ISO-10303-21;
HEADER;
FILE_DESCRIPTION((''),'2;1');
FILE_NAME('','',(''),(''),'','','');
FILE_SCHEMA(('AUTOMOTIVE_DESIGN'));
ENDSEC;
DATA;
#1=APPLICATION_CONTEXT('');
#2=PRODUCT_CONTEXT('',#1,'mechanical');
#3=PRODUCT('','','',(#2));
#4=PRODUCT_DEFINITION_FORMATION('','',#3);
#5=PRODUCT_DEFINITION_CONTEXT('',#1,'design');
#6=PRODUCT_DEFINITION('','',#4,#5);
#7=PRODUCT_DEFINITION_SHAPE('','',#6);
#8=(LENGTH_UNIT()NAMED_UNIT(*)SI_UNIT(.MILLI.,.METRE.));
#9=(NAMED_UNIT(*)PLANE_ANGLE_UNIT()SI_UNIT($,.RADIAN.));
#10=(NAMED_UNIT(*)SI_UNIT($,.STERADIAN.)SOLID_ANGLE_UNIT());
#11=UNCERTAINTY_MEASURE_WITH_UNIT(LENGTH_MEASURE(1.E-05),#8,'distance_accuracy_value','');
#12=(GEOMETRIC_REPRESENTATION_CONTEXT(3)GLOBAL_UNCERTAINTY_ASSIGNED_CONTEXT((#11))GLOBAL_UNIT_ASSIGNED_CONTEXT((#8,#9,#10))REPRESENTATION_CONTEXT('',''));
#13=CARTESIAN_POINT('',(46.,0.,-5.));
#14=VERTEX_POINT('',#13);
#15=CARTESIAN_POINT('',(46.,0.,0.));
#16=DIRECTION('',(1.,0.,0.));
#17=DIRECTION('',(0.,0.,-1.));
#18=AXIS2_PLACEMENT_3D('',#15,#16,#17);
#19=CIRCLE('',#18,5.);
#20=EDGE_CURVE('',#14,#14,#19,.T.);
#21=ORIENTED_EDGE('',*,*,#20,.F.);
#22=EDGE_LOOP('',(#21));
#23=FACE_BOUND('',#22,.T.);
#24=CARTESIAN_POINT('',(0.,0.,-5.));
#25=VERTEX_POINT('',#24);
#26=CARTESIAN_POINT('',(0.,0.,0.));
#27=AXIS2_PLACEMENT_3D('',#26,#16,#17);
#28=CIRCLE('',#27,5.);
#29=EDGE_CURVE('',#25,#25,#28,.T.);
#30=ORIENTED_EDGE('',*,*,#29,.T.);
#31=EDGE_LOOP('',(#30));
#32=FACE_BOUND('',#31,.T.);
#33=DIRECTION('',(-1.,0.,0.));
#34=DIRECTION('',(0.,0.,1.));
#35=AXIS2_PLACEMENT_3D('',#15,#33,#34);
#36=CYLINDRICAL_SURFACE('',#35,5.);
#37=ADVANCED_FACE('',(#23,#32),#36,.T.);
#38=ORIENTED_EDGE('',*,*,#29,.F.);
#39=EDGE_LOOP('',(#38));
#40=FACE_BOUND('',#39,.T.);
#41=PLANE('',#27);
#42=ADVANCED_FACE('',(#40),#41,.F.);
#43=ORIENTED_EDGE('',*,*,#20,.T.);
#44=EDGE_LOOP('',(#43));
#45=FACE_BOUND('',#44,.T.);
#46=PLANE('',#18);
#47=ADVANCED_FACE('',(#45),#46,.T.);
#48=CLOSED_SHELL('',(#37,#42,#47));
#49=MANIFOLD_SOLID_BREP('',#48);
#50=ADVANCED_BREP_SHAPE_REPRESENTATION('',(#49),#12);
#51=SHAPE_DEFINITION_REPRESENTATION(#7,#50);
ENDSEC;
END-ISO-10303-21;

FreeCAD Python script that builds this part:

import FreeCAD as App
import Part
import Sketcher
from FreeCAD import Vector

doc = App.newDocument("Part")
body = doc.addObject("PartDesign::Body", "Body")

sketch1 = doc.addObject("Sketcher::SketchObject", "Sketch")
body.addObject(sketch1)
sketch1.AttachmentSupport = (doc.YZ_Plane, [""])
sketch1.MapMode = "FlatFace"
sketch1.addGeometry(Part.Circle(Vector(0, 0, 0), Vector(0, 0, 1), 5), False)
sketch1.addConstraint([
    Sketcher.Constraint("Coincident", 0, 3, -1, 1),
    Sketcher.Constraint("Diameter", 0, 10.0),
])
pad1 = doc.addObject("PartDesign::Pad", "Pad")
body.addObject(pad1)
pad1.Profile = sketch1
pad1.Length = 46

doc.recompute()
